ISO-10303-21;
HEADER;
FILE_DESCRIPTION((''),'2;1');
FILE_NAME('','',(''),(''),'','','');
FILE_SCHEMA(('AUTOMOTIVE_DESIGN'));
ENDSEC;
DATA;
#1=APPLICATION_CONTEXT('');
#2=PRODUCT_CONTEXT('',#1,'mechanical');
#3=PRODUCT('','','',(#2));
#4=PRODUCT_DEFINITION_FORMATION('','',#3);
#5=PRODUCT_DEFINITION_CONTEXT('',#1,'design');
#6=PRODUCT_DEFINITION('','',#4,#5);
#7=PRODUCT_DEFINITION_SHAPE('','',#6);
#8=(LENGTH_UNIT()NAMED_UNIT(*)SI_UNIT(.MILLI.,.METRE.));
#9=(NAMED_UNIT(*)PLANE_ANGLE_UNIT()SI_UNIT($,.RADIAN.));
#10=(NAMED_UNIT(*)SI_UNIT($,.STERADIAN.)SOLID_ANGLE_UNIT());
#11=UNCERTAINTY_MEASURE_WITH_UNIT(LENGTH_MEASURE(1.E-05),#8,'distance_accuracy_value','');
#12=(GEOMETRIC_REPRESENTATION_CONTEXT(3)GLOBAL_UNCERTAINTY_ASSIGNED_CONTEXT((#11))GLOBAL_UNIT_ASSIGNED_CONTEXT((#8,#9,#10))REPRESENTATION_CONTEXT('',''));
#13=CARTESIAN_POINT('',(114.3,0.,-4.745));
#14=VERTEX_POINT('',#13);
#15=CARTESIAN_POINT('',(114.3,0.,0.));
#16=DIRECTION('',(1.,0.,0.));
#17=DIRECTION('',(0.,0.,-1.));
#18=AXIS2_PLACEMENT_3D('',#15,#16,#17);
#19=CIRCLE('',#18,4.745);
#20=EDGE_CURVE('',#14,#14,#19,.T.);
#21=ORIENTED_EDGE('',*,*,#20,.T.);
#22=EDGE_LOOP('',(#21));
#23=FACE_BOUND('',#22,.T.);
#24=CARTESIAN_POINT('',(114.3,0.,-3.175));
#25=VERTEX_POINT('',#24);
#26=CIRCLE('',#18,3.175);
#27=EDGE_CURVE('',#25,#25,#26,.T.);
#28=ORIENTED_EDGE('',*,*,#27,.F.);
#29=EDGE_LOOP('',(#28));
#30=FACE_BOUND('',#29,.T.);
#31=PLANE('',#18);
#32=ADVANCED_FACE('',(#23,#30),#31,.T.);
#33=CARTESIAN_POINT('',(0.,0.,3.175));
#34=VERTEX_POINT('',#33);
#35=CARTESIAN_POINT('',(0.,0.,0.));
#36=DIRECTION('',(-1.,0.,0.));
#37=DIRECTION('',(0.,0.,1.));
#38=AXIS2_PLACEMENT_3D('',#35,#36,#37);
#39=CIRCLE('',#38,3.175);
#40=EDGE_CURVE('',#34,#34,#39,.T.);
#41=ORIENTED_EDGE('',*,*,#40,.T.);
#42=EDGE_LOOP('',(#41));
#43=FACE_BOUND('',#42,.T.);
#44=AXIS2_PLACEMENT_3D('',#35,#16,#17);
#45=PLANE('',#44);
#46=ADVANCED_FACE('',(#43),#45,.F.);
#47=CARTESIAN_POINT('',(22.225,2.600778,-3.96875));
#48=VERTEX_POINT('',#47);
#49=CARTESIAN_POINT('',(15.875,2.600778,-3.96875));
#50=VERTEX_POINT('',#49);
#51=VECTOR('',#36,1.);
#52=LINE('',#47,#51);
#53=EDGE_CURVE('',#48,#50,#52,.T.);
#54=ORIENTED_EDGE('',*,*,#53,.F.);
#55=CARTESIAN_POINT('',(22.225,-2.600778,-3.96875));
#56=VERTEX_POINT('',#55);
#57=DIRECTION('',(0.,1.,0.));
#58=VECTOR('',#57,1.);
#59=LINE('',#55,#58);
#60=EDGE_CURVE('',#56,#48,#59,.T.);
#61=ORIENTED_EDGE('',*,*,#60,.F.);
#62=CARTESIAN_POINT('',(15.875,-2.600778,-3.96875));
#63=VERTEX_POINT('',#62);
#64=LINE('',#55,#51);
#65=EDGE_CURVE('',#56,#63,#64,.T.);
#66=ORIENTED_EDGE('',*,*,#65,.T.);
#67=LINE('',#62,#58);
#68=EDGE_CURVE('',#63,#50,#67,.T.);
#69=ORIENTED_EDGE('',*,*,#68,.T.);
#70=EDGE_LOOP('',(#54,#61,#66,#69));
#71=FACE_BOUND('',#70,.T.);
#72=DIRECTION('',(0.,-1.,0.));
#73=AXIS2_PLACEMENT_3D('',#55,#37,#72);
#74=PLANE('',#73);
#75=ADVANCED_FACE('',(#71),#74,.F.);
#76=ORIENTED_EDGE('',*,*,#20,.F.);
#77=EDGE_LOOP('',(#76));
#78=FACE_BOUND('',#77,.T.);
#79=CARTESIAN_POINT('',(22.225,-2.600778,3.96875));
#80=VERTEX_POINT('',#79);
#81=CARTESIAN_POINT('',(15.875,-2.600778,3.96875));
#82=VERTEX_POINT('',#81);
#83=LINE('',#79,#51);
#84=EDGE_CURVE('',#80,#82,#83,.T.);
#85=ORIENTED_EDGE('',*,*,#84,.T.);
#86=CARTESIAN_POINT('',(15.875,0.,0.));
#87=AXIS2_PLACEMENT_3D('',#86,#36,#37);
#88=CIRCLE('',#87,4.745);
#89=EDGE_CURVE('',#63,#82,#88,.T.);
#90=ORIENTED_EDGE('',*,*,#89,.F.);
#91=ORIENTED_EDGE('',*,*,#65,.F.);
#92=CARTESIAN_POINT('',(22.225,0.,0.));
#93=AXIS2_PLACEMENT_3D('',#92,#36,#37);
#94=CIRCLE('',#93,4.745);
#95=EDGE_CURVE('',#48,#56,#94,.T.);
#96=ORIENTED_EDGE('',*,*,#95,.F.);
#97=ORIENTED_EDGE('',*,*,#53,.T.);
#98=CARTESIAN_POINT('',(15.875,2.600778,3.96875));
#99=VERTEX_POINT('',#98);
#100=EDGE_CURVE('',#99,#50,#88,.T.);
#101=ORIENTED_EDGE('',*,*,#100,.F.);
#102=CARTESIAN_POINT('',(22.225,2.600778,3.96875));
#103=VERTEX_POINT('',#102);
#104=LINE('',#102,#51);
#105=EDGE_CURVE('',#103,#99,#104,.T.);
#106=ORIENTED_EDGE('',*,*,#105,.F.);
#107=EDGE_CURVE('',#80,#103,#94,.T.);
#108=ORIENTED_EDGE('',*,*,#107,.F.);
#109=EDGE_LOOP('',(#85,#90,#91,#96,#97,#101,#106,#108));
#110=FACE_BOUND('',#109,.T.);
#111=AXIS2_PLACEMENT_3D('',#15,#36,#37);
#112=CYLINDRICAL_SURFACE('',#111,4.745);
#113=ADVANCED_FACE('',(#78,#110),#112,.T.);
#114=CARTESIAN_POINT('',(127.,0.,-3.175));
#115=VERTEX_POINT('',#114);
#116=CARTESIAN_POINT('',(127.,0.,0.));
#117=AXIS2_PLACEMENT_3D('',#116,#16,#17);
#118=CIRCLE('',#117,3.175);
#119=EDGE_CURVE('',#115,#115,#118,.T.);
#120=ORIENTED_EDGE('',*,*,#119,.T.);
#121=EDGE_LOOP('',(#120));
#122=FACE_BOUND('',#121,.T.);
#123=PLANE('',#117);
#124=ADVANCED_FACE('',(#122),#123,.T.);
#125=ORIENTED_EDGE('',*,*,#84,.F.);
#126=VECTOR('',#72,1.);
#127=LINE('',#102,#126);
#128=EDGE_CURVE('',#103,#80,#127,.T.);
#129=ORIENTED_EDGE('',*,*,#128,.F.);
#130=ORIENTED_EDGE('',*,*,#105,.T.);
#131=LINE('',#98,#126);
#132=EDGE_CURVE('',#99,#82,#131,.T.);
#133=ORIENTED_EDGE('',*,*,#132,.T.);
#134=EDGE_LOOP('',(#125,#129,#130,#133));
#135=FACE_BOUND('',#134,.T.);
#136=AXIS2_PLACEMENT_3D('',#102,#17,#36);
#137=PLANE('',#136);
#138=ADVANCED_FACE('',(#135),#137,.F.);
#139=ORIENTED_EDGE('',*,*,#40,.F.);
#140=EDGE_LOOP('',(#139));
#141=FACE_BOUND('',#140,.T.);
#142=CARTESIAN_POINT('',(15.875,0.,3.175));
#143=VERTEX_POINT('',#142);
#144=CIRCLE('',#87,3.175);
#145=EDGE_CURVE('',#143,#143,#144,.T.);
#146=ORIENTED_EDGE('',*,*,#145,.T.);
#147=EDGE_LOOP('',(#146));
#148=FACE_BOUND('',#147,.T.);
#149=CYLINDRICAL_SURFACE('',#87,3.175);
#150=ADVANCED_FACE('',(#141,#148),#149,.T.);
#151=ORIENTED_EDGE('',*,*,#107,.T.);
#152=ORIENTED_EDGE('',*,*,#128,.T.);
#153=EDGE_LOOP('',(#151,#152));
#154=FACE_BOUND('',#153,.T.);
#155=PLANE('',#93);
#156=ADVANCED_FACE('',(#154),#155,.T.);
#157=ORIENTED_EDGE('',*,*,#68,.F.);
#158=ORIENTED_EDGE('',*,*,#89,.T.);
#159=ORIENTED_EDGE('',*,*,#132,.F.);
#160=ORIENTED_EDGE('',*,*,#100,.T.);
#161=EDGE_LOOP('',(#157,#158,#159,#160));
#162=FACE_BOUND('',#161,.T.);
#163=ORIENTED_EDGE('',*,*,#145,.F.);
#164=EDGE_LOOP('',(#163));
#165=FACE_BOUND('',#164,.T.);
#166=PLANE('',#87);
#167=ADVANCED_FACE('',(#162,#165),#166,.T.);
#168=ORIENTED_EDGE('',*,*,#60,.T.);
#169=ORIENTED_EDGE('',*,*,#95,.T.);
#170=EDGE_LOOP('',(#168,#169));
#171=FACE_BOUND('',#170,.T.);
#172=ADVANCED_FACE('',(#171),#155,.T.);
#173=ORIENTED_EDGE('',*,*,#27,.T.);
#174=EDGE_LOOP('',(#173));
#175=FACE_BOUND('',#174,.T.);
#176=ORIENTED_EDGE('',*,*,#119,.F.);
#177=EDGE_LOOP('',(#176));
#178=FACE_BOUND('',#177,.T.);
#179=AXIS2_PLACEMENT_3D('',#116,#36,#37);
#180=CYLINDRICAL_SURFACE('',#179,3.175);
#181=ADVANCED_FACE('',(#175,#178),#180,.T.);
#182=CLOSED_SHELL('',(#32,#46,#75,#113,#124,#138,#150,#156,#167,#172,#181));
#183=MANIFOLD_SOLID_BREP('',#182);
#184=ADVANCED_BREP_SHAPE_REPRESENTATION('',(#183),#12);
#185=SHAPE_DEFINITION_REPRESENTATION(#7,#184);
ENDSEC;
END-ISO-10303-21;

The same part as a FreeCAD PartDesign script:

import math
import FreeCAD as App
import Part
import Sketcher

V = App.Vector
Q = App.Units.Quantity

doc = App.newDocument("Part")
body = doc.addObject("PartDesign::Body", "Body")

# Sketch on YZ plane
sketch1 = doc.addObject("Sketcher::SketchObject", "Sketch")
body.addObject(sketch1)
sketch1.AttachmentSupport = (doc.YZ_Plane, [""])
sketch1.MapMode = "FlatFace"
sketch1.addGeometry(Part.Circle(V(0, 0, 0), V(0, 0, 1), 4.745), False)
sketch1.addConstraint([
    Sketcher.Constraint("Coincident", 0, 3, -1, 1),
    Sketcher.Constraint("Diameter", 0, 9.49),
])
pad1 = doc.addObject("PartDesign::Pad", "Pad")
body.addObject(pad1)
pad1.Profile = sketch1
pad1.Length = Q("4.5 in")

# Sketch on YZ plane
sketch2 = doc.addObject("Sketcher::SketchObject", "Sketch001")
body.addObject(sketch2)
sketch2.AttachmentSupport = (doc.YZ_Plane, [""])
sketch2.MapMode = "FlatFace"
sketch2.AttachmentOffset = App.Placement(V(0, 0, 4.5 * 25.4), App.Rotation())
sketch2.addGeometry(Part.Circle(V(0, 0, 0), V(0, 0, 1), 3.175), False)
sketch2.addConstraint([
    Sketcher.Constraint("Coincident", 0, 3, -1, 1),
    Sketcher.Constraint("Diameter", 0, Q("0.25 in")),
])
pad2 = doc.addObject("PartDesign::Pad", "Pad001")
body.addObject(pad2)
pad2.Profile = sketch2
pad2.Length = Q("0.5 in")

# Sketch on YZ plane
sketch3 = doc.addObject("Sketcher::SketchObject", "Sketch002")
body.addObject(sketch3)
sketch3.AttachmentSupport = (doc.YZ_Plane, [""])
sketch3.MapMode = "FlatFace"
sketch3.addGeometry([
    Part.Circle(V(0, 0, 0), V(0, 0, 1), 4.745),
    Part.Circle(V(0, 0, 0), V(0, 0, 1), 3.175),
], False)
sketch3.addConstraint([
    Sketcher.Constraint("Coincident", 0, 3, -1, 1),
    Sketcher.Constraint("Coincident", 1, 3, -1, 1),
    Sketcher.Constraint("Diameter", 1, Q("0.25 in")),
    Sketcher.Constraint("Diameter", 0, 9.49),
])
pocket1 = doc.addObject("PartDesign::Pocket", "Pocket")
body.addObject(pocket1)
pocket1.Profile = sketch3
pocket1.Length = Q("0.625 in")
pocket1.Reversed = True

# Sketch on YZ plane
sketch4 = doc.addObject("Sketcher::SketchObject", "Sketch003")
body.addObject(sketch4)
sketch4.AttachmentSupport = (doc.YZ_Plane, [""])
sketch4.MapMode = "FlatFace"
sketch4.AttachmentOffset = App.Placement(V(0, 0, 0.625 * 25.4), App.Rotation())
sketch4.addGeometry([
    Part.LineSegment(V(2.600778, 3.96875, 0), V(-2.600778, 3.96875, 0)),
    Part.ArcOfCircle(Part.Circle(V(0, 0, 0), V(0, 0, 1), 4.745), math.radians(56.762603), math.radians(123.237397)),
    Part.LineSegment(V(-2.600778, -3.96875, 0), V(2.600778, -3.96875, 0)),
    Part.ArcOfCircle(Part.Circle(V(0, 0, 0), V(0, 0, 1), 4.745), math.radians(-123.237397), math.radians(-56.762603)),
], False)
sketch4.addConstraint([
    Sketcher.Constraint("Coincident", 0, 1, 1, 1),
    Sketcher.Constraint("Coincident", 1, 2, 0, 2),
    Sketcher.Constraint("Coincident", 2, 1, 3, 1),
    Sketcher.Constraint("Coincident", 3, 2, 2, 2),
    Sketcher.Constraint("Horizontal", 0),
    Sketcher.Constraint("Horizontal", 2),
    Sketcher.Constraint("Coincident", 1, 3, -1, 1),
    Sketcher.Constraint("Coincident", 3, 3, -1, 1),
    Sketcher.Constraint("Equal", 1, 3),
    Sketcher.Constraint("Vertical", 1, 2, 2, 1),
    Sketcher.Constraint("Radius", 1, 4.745),
    Sketcher.Constraint("DistanceY", -1, 1, 0, 1, Q("0.15625 in")),
])
pocket2 = doc.addObject("PartDesign::Pocket", "Pocket001")
body.addObject(pocket2)
pocket2.Profile = sketch4
pocket2.Length = Q("0.25 in")
pocket2.Reversed = True

doc.recompute()
